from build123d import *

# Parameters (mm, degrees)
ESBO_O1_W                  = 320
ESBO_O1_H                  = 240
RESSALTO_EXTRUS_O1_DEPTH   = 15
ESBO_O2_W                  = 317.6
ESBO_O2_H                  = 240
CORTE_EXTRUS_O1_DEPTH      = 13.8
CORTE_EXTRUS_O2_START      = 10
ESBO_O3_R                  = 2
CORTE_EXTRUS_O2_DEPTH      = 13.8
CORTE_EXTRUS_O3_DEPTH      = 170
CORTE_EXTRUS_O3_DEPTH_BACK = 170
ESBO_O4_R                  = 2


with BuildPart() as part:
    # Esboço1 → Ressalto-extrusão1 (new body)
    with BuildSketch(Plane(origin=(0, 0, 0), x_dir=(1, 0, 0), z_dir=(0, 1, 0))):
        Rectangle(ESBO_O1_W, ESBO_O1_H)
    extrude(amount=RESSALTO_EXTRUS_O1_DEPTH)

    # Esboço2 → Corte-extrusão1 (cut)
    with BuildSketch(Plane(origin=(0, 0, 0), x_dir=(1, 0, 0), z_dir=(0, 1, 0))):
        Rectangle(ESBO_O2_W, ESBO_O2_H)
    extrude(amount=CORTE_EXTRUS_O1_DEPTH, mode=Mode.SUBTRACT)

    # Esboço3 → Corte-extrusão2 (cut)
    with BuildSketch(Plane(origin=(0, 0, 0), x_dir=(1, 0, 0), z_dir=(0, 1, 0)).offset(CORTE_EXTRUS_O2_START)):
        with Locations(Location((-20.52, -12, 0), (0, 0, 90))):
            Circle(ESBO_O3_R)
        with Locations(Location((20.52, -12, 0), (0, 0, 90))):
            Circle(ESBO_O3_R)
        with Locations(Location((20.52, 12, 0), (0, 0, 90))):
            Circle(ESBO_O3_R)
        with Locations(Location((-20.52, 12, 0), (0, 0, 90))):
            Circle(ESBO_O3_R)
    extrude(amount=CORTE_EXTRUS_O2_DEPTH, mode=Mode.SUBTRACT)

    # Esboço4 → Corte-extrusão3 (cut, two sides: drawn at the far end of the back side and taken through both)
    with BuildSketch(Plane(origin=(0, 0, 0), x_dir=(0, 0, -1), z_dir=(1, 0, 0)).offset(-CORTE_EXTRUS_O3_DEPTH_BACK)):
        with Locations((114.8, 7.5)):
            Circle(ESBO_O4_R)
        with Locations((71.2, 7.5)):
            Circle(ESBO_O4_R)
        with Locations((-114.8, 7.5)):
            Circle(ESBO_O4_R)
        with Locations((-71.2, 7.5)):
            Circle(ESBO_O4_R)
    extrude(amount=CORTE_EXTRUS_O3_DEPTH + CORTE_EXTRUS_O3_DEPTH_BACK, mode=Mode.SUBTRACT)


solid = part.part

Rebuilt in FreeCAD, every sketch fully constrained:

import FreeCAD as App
import Part
import Sketcher
from FreeCAD import Vector

doc = App.newDocument("Part")
body = doc.addObject("PartDesign::Body", "Body")

sketch1 = body.newObject("Sketcher::SketchObject", "Sketch")
sketch1.AttachmentSupport = (doc.getObject("XZ_Plane"), [""])
sketch1.MapMode = "FlatFace"
sketch1.addGeometry([
    Part.LineSegment(Vector(-160, -120, 0), Vector(-160, 120, 0)),
    Part.LineSegment(Vector(-160, 120, 0), Vector(160, 120, 0)),
    Part.LineSegment(Vector(160, 120, 0), Vector(160, -120, 0)),
    Part.LineSegment(Vector(160, -120, 0), Vector(-160, -120, 0)),
], False)
sketch1.addConstraint([
    Sketcher.Constraint("Coincident", 0, 2, 1, 1),
    Sketcher.Constraint("Coincident", 1, 2, 2, 1),
    Sketcher.Constraint("Coincident", 2, 2, 3, 1),
    Sketcher.Constraint("Coincident", 3, 2, 0, 1),
    Sketcher.Constraint("Vertical", 0),
    Sketcher.Constraint("Horizontal", 1),
    Sketcher.Constraint("Vertical", 2),
    Sketcher.Constraint("Horizontal", 3),
    Sketcher.Constraint("Symmetric", 0, 2, 2, 2, -1, 1),
    Sketcher.Constraint("DistanceX", 1, 1, 1, 2, 320.0),
    Sketcher.Constraint("DistanceY", 0, 1, 0, 2, 240.0),
])
pad1 = body.newObject("PartDesign::Pad", "Pad")
pad1.Profile = sketch1
pad1.Length = 15
pad1.Reversed = True

sketch2 = body.newObject("Sketcher::SketchObject", "Sketch001")
sketch2.AttachmentSupport = (doc.getObject("XZ_Plane"), [""])
sketch2.MapMode = "FlatFace"
sketch2.addGeometry([
    Part.LineSegment(Vector(-159, -120, 0), Vector(-159, 120, 0)),
    Part.LineSegment(Vector(-159, 120, 0), Vector(159, 120, 0)),
    Part.LineSegment(Vector(159, 120, 0), Vector(159, -120, 0)),
    Part.LineSegment(Vector(159, -120, 0), Vector(-159, -120, 0)),
], False)
sketch2.addConstraint([
    Sketcher.Constraint("Coincident", 0, 2, 1, 1),
    Sketcher.Constraint("Coincident", 1, 2, 2, 1),
    Sketcher.Constraint("Coincident", 2, 2, 3, 1),
    Sketcher.Constraint("Coincident", 3, 2, 0, 1),
    Sketcher.Constraint("Vertical", 0),
    Sketcher.Constraint("Horizontal", 1),
    Sketcher.Constraint("Vertical", 2),
    Sketcher.Constraint("Horizontal", 3),
    Sketcher.Constraint("Symmetric", 0, 2, 2, 2, -1, 1),
    Sketcher.Constraint("DistanceY", 0, 1, 0, 2, 240.0),
    Sketcher.Constraint("DistanceX", 1, 1, 1, 2, 317.6),
])
pocket1 = body.newObject("PartDesign::Pocket", "Pocket")
pocket1.Profile = sketch2
pocket1.Length = 13.8

sketch3 = body.newObject("Sketcher::SketchObject", "Sketch002")
sketch3.AttachmentSupport = (doc.getObject("XZ_Plane"), [""])
sketch3.MapMode = "FlatFace"
sketch3.AttachmentOffset = App.Placement(Vector(0, 0, -10), App.Rotation())
sketch3.addGeometry([
    Part.Circle(Vector(-20.5, 12, 0), Vector(0, 0, 1), 2),
    Part.Circle(Vector(20.5, 12, 0), Vector(0, 0, 1), 2),
    Part.Circle(Vector(20.5, -12, 0), Vector(0, 0, 1), 2),
    Part.Circle(Vector(-20.5, -12, 0), Vector(0, 0, 1), 2),
], False)
sketch3.addConstraint([
    Sketcher.Constraint("Equal", 0, 1),
    Sketcher.Constraint("Equal", 1, 2),
    Sketcher.Constraint("Equal", 2, 3),
    Sketcher.Constraint("Symmetric", 0, 3, 2, 3, -1, 1),
    Sketcher.Constraint("Symmetric", 1, 3, 3, 3, -1, 1),
    Sketcher.Constraint("Symmetric", 0, 3, 1, 3, -2),
    Sketcher.Constraint("Diameter", 0, 4.0),
    Sketcher.Constraint("DistanceY", -1, 1, 0, 3, 12.0),
    Sketcher.Constraint("DistanceX", 0, 3, -1, 1, 20.52),
])
pocket2 = body.newObject("PartDesign::Pocket", "Pocket001")
pocket2.Profile = sketch3
pocket2.Length = 13.8

sketch4 = body.newObject("Sketcher::SketchObject", "Sketch003")
sketch4.AttachmentSupport = (doc.getObject("YZ_Plane"), [""])
sketch4.MapMode = "FlatFace"
sketch4.addGeometry([
    Part.Circle(Vector(7.5, -114.8, 0), Vector(0, 0, 1), 2),
    Part.Circle(Vector(7.5, -71.2, 0), Vector(0, 0, 1), 2),
    Part.Circle(Vector(7.5, 114.8, 0), Vector(0, 0, 1), 2),
    Part.Circle(Vector(7.5, 71.2, 0), Vector(0, 0, 1), 2),
], False)
sketch4.addConstraint([
    Sketcher.Constraint("Equal", 0, 1),
    Sketcher.Constraint("Equal", 1, 2),
    Sketcher.Constraint("Equal", 2, 3),
    Sketcher.Constraint("Symmetric", 0, 3, 2, 3, -1),
    Sketcher.Constraint("Symmetric", 1, 3, 3, 3, -1),
    Sketcher.Constraint("Vertical", 0, 3, 1, 3),
    Sketcher.Constraint("Diameter", 0, 4.0),
    Sketcher.Constraint("DistanceY", 1, 3, 2, 3, 186.0),
    Sketcher.Constraint("DistanceX", -1, 1, 0, 3, 7.5),
    Sketcher.Constraint("DistanceY", 0, 3, -1, 1, 114.8),
])
pocket3 = body.newObject("PartDesign::Pocket", "Pocket002")
pocket3.Profile = sketch4
pocket3.Type = "ThroughAll"
pocket3.Midplane = True

doc.recompute()
